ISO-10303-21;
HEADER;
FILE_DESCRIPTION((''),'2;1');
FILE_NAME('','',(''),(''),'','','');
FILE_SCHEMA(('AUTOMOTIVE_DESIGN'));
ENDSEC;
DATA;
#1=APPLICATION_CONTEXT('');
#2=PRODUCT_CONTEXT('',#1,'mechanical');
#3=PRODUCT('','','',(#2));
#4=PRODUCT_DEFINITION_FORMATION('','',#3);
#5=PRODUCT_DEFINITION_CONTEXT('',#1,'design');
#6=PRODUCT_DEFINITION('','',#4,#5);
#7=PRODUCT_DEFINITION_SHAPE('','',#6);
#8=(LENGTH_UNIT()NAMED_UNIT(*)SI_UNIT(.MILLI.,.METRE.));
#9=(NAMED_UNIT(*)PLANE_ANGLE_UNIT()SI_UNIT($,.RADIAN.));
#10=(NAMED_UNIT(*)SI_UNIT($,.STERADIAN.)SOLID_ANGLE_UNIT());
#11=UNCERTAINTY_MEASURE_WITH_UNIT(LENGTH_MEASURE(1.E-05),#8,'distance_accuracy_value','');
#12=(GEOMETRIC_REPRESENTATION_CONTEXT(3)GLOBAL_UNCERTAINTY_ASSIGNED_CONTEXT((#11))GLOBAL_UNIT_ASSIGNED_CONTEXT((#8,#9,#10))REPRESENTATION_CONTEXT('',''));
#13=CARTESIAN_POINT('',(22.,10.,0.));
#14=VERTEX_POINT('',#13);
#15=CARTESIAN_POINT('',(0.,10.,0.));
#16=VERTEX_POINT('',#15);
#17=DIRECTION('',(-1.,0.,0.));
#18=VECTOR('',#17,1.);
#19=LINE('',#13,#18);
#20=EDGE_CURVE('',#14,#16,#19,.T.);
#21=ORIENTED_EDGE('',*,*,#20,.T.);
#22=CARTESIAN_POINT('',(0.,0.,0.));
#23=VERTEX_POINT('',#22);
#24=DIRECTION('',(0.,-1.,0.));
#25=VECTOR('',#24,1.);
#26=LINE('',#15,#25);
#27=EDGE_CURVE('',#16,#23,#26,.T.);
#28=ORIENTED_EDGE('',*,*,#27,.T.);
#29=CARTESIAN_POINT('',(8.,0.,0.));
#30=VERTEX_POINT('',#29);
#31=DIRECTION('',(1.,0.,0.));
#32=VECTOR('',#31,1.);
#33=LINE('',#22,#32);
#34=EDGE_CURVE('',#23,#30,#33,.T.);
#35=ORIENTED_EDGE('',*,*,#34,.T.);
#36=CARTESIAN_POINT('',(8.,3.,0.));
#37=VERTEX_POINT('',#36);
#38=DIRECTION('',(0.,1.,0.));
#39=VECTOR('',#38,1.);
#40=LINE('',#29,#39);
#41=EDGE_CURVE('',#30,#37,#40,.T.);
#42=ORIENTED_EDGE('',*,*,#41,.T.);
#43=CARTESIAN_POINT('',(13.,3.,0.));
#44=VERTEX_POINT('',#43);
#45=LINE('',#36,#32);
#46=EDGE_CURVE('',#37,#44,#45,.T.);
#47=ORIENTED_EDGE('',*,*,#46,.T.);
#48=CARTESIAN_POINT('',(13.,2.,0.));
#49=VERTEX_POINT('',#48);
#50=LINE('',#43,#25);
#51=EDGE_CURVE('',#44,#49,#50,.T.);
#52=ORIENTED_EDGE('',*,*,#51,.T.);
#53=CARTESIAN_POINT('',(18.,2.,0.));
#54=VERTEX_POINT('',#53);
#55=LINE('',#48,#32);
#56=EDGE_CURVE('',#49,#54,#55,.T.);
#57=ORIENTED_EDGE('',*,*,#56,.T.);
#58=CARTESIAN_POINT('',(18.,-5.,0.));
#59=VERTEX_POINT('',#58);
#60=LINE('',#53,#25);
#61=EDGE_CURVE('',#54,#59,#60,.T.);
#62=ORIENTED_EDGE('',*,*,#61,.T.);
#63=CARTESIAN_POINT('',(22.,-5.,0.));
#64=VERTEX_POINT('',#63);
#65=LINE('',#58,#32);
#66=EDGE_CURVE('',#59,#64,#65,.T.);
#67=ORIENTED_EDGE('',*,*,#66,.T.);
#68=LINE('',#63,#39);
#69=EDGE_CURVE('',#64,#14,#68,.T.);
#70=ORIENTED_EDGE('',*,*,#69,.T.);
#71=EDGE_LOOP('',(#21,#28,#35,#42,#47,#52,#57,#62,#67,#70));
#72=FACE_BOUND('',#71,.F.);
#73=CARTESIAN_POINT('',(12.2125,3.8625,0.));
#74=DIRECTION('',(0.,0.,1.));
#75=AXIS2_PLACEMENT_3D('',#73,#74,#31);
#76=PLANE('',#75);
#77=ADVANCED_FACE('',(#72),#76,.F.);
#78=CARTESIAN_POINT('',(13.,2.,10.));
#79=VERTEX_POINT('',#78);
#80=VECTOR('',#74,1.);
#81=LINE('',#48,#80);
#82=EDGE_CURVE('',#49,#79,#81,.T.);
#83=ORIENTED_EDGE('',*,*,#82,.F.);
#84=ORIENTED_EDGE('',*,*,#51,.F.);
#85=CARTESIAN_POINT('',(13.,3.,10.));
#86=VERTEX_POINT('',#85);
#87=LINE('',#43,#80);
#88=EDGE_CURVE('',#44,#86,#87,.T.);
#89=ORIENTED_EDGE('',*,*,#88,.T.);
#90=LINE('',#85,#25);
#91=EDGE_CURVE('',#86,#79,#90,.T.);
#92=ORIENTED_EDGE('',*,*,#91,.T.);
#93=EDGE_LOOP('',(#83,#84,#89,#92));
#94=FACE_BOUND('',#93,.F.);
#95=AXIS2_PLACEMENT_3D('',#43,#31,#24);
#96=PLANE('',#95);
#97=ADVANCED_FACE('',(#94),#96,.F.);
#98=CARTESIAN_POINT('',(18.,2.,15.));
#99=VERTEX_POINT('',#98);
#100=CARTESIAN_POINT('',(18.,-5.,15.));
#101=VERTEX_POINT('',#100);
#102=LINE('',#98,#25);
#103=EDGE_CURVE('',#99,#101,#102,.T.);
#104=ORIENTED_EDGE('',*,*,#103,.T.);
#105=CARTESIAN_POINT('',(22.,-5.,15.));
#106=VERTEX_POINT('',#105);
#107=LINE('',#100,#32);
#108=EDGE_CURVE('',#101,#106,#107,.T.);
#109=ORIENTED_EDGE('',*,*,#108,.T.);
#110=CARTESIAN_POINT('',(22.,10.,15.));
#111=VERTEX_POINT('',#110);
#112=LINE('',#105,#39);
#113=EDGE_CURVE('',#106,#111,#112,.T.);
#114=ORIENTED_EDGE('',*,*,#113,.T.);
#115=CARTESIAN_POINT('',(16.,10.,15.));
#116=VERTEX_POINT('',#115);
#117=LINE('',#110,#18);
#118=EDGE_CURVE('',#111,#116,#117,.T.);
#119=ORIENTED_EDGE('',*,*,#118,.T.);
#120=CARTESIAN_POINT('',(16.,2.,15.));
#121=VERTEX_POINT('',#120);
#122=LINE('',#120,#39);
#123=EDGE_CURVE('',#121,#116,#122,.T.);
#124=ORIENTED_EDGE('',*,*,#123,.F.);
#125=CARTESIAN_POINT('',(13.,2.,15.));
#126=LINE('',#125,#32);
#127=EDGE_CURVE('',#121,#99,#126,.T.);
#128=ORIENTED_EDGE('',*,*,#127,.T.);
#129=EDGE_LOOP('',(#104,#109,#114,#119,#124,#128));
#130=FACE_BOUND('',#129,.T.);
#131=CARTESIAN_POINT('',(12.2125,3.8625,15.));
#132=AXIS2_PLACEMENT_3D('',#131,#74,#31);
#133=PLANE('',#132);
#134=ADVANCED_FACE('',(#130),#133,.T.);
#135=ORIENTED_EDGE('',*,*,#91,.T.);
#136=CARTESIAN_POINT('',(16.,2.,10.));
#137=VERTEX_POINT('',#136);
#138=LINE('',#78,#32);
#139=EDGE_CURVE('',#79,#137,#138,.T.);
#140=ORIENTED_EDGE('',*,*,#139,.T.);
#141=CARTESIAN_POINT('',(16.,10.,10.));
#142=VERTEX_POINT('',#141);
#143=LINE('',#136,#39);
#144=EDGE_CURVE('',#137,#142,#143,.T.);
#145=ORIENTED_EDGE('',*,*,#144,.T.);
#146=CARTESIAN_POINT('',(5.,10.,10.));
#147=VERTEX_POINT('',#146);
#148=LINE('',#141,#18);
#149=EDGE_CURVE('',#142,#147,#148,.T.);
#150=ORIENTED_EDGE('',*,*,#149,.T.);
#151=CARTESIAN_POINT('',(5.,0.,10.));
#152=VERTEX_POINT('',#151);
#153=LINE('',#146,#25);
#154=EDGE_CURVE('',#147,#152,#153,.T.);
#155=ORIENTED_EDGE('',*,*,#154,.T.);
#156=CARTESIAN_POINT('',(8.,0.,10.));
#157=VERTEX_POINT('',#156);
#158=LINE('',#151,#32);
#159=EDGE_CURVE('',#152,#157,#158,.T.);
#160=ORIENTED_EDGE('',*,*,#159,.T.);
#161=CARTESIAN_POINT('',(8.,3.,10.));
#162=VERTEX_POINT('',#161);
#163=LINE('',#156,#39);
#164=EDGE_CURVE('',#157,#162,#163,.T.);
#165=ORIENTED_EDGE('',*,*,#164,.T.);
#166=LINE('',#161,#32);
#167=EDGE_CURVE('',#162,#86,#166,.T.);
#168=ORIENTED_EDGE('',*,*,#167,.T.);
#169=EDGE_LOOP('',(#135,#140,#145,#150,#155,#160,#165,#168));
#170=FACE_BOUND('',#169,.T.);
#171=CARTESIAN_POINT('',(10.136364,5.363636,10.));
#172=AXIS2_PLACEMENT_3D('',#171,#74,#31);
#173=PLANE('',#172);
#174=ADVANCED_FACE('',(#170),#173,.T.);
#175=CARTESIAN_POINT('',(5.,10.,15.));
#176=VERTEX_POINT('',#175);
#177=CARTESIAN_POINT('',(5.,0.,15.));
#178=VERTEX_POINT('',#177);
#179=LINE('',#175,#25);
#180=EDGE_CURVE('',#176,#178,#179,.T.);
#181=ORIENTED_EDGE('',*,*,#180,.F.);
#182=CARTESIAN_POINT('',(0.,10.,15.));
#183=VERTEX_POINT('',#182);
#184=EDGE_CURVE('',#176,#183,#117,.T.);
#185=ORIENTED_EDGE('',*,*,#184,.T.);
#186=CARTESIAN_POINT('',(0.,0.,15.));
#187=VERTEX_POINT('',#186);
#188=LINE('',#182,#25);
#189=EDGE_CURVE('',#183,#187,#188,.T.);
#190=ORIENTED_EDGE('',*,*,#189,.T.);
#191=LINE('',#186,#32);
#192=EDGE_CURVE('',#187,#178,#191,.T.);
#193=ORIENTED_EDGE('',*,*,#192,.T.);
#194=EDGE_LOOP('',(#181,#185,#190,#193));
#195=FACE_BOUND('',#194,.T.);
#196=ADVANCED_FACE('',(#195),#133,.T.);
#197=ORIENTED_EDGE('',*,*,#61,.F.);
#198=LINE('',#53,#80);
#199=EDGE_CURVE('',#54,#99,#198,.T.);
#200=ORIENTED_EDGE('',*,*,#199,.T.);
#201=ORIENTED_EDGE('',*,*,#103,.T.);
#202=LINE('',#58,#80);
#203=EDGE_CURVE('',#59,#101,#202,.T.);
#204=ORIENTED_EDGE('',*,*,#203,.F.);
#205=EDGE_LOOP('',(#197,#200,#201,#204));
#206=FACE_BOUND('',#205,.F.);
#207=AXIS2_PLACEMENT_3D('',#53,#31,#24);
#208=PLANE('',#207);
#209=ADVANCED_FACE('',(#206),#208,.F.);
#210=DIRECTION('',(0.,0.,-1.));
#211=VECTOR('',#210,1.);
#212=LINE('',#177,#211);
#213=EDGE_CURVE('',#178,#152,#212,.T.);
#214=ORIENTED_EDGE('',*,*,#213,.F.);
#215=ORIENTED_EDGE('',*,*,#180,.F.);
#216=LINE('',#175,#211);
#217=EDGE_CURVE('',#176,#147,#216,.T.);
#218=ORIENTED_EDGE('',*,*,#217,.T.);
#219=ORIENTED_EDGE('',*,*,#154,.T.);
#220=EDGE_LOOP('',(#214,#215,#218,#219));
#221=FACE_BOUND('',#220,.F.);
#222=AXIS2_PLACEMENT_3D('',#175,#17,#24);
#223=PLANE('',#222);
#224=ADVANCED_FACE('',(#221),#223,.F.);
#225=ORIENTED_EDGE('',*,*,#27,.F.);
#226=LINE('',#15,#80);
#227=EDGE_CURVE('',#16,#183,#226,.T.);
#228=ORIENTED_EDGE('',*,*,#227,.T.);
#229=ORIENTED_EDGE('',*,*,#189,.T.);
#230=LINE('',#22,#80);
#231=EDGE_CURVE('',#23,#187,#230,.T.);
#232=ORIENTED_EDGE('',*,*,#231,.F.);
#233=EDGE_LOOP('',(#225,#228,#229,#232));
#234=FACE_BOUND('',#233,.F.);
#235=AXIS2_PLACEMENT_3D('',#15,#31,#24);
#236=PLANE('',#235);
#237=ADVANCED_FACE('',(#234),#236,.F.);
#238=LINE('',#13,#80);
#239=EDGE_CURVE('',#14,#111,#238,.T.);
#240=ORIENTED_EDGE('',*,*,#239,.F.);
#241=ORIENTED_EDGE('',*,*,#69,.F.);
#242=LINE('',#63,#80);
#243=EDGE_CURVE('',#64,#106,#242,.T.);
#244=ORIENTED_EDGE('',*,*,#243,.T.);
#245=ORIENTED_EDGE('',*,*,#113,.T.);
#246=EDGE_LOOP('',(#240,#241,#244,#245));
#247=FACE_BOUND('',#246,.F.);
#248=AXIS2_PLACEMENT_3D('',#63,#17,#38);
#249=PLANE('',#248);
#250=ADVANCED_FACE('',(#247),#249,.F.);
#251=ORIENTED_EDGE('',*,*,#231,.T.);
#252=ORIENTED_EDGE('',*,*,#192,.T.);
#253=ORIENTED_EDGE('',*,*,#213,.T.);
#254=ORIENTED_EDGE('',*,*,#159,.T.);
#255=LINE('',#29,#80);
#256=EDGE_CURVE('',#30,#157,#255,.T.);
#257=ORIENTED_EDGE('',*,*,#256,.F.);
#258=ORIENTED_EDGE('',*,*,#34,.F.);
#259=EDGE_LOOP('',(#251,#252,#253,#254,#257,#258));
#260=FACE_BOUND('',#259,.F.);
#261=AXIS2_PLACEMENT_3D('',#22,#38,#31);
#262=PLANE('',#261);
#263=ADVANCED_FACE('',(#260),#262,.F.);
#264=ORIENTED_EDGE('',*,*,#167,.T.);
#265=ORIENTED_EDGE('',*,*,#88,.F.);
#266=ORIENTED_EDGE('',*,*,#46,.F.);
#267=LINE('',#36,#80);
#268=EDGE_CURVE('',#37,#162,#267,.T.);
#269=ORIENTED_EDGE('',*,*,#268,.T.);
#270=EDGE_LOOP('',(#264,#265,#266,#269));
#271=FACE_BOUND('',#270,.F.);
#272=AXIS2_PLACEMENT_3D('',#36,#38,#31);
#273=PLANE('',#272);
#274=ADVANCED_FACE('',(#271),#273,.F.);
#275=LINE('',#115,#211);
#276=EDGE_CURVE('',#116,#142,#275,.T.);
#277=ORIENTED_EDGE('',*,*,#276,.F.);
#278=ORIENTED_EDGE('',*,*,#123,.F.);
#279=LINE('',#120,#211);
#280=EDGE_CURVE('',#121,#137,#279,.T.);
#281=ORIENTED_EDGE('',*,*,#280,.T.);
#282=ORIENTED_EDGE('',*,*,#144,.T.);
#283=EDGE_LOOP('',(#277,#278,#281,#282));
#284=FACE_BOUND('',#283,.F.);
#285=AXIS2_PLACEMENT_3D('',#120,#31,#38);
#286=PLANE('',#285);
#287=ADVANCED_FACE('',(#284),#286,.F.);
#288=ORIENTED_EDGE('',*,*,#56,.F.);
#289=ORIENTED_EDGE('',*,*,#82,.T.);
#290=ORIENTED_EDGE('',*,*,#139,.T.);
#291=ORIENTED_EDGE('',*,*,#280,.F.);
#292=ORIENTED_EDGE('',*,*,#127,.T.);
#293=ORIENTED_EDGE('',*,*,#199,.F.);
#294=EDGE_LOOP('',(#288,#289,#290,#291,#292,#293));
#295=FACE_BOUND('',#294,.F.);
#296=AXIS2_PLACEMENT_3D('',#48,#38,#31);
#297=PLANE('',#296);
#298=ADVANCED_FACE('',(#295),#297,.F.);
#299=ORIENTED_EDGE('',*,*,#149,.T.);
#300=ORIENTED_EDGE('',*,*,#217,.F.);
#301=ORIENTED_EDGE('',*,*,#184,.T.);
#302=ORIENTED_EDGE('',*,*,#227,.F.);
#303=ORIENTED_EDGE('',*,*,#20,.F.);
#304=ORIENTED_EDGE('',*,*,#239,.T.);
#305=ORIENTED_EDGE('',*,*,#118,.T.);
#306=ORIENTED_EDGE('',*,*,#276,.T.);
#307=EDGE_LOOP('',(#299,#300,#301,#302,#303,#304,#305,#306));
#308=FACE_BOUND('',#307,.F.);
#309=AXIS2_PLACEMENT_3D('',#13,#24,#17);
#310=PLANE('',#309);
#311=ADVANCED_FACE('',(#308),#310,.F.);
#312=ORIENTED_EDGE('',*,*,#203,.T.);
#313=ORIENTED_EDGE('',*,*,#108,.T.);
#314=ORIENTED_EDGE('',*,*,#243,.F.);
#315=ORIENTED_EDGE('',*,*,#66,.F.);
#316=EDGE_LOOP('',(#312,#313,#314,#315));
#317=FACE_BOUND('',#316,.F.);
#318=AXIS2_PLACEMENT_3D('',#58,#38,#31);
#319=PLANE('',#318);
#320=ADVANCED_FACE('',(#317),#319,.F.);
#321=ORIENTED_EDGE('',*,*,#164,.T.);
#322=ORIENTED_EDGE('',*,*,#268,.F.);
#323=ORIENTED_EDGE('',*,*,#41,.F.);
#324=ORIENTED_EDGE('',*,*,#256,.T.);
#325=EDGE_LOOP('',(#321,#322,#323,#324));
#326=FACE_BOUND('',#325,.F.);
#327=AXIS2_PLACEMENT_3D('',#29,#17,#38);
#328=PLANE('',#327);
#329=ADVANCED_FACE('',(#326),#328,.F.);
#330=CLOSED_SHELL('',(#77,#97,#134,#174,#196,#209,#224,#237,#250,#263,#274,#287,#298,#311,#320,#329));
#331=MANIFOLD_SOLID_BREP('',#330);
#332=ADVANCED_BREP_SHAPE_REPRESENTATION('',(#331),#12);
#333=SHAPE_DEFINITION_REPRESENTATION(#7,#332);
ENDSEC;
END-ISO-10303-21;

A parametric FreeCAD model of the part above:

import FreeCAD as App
import Part
import Sketcher

V = App.Vector


def add_polygon(sketch, points):
    """Adds a closed chain of lines whose ends are joined by coincident constraints."""
    first, n = sketch.GeometryCount, len(points)
    for a, b in zip(points, points[1:] + points[:1]):
        sketch.addGeometry(Part.LineSegment(App.Vector(*a, 0), App.Vector(*b, 0)), False)
    for i in range(n):
        sketch.addConstraint(Sketcher.Constraint("Coincident", first + i, 2, first + (i + 1) % n, 1))

doc = App.newDocument("Part")
body = doc.addObject("PartDesign::Body", "Body")

# Sketch on XY plane
sketch1 = body.newObject("Sketcher::SketchObject", "Sketch")
sketch1.AttachmentSupport = (doc.getObject("XY_Plane"), [""])
sketch1.MapMode = "FlatFace"
add_polygon(sketch1, [(0, 10), (0, 0), (8, 0), (8, 3), (13, 3), (13, 2), (18, 2), (18, -5), (22, -5), (22, 10)])  # lines 0-9
sketch1.addConstraint(Sketcher.Constraint("Vertical", 0))
sketch1.addConstraint(Sketcher.Constraint("Horizontal", 1))
sketch1.addConstraint(Sketcher.Constraint("Vertical", 2))
sketch1.addConstraint(Sketcher.Constraint("Horizontal", 3))
sketch1.addConstraint(Sketcher.Constraint("Vertical", 4))
sketch1.addConstraint(Sketcher.Constraint("Horizontal", 5))
sketch1.addConstraint(Sketcher.Constraint("Vertical", 6))
sketch1.addConstraint(Sketcher.Constraint("Horizontal", 7))
sketch1.addConstraint(Sketcher.Constraint("Vertical", 8))
sketch1.addConstraint(Sketcher.Constraint("Horizontal", 9))
sketch1.addConstraint(Sketcher.Constraint("Coincident", 0, 2, -1, 1))
sketch1.addConstraint(Sketcher.Constraint("Equal", 3, 5))
sketch1.addConstraint(Sketcher.Constraint("DistanceX", 1, 1, 1, 2, 8.0))
sketch1.addConstraint(Sketcher.Constraint("DistanceX", 3, 1, 3, 2, 5.0))
sketch1.addConstraint(Sketcher.Constraint("DistanceX", 7, 1, 7, 2, 4.0))
sketch1.addConstraint(Sketcher.Constraint("DistanceY", 0, 2, 0, 1, 10.0))
sketch1.addConstraint(Sketcher.Constraint("DistanceY", 2, 1, 2, 2, 3.0))
sketch1.addConstraint(Sketcher.Constraint("DistanceY", 4, 2, 4, 1, 1.0))
sketch1.addConstraint(Sketcher.Constraint("DistanceY", 6, 2, 6, 1, 7.0))
pad1 = body.newObject("PartDesign::Pad", "Pad")
pad1.Profile = sketch1
pad1.Length = 15

# Sketch on XY plane
sketch2 = body.newObject("Sketcher::SketchObject", "Sketch001")
sketch2.AttachmentSupport = (doc.getObject("XY_Plane"), [""])
sketch2.MapMode = "FlatFace"
sketch2.AttachmentOffset = App.Placement(V(0, 0, 15), App.Rotation())
add_polygon(sketch2, [(16, 2), (16, 10), (5, 10), (5, 0), (8, 0), (8, 3), (13, 3), (13, 2)])  # lines 0-7
sketch2.addConstraint(Sketcher.Constraint("Vertical", 0))
sketch2.addConstraint(Sketcher.Constraint("Horizontal", 1))
sketch2.addConstraint(Sketcher.Constraint("Vertical", 2))
sketch2.addConstraint(Sketcher.Constraint("Horizontal", 3))
sketch2.addConstraint(Sketcher.Constraint("Vertical", 4))
sketch2.addConstraint(Sketcher.Constraint("Horizontal", 5))
sketch2.addConstraint(Sketcher.Constraint("Vertical", 6))
sketch2.addConstraint(Sketcher.Constraint("Horizontal", 7))
sketch2.addConstraint(Sketcher.Constraint("PointOnObject", 2, 2, -1))
sketch2.addConstraint(Sketcher.Constraint("Equal", 3, 7))
sketch2.addConstraint(Sketcher.Constraint("Equal", 7, 4))
sketch2.addConstraint(Sketcher.Constraint("DistanceX", 1, 2, 1, 1, 11.0))
sketch2.addConstraint(Sketcher.Constraint("DistanceX", 3, 1, 3, 2, 3.0))
sketch2.addConstraint(Sketcher.Constraint("DistanceY", 0, 1, 0, 2, 8.0))
sketch2.addConstraint(Sketcher.Constraint("DistanceY", 2, 2, 2, 1, 10.0))
sketch2.addConstraint(Sketcher.Constraint("DistanceX", -1, 1, 0, 2, 16.0))
pocket1 = body.newObject("PartDesign::Pocket", "Pocket")
pocket1.Profile = sketch2
pocket1.Length = 5

doc.recompute()
